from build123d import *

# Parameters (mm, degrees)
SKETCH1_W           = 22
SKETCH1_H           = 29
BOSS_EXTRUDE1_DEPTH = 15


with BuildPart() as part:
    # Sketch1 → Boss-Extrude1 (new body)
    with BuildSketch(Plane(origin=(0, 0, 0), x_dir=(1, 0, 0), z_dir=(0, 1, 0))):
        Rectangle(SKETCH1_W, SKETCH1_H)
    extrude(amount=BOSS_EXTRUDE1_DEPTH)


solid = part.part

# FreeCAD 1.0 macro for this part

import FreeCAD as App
import Part
import Sketcher
from FreeCAD import Vector
Q = App.Units.Quantity

doc = App.newDocument("Part")
body = doc.addObject("PartDesign::Body", "Body")

sketch1 = doc.addObject("Sketcher::SketchObject", "Sketch")
body.addObject(sketch1)
sketch1.AttachmentSupport = (doc.XZ_Plane, [""])
sketch1.MapMode = "FlatFace"
sketch1.addGeometry(Part.LineSegment(Vector(-11, -14, 0), Vector(-11, 14, 0)), False)
sketch1.addGeometry(Part.LineSegment(Vector(-11, 14, 0), Vector(11, 14, 0)), False)
sketch1.addGeometry(Part.LineSegment(Vector(11, 14, 0), Vector(11, -14, 0)), False)
sketch1.addGeometry(Part.LineSegment(Vector(11, -14, 0), Vector(-11, -14, 0)), False)
sketch1.addConstraint(Sketcher.Constraint("Coincident", 0, 2, 1, 1))
sketch1.addConstraint(Sketcher.Constraint("Coincident", 1, 2, 2, 1))
sketch1.addConstraint(Sketcher.Constraint("Coincident", 2, 2, 3, 1))
sketch1.addConstraint(Sketcher.Constraint("Coincident", 3, 2, 0, 1))
sketch1.addConstraint(Sketcher.Constraint("Vertical", 0))
sketch1.addConstraint(Sketcher.Constraint("Horizontal", 1))
sketch1.addConstraint(Sketcher.Constraint("Vertical", 2))
sketch1.addConstraint(Sketcher.Constraint("Horizontal", 3))
sketch1.addConstraint(Sketcher.Constraint("Symmetric", 0, 2, 2, 2, -1, 1))
sketch1.addConstraint(Sketcher.Constraint("DistanceX", 1, 1, 1, 2, Q("22 mm")))
sketch1.addConstraint(Sketcher.Constraint("DistanceY", 0, 1, 0, 2, Q("29 mm")))
pad1 = doc.addObject("PartDesign::Pad", "Pad")
body.addObject(pad1)
pad1.Profile = sketch1
pad1.Length = 15
pad1.Reversed = True

doc.recompute()
